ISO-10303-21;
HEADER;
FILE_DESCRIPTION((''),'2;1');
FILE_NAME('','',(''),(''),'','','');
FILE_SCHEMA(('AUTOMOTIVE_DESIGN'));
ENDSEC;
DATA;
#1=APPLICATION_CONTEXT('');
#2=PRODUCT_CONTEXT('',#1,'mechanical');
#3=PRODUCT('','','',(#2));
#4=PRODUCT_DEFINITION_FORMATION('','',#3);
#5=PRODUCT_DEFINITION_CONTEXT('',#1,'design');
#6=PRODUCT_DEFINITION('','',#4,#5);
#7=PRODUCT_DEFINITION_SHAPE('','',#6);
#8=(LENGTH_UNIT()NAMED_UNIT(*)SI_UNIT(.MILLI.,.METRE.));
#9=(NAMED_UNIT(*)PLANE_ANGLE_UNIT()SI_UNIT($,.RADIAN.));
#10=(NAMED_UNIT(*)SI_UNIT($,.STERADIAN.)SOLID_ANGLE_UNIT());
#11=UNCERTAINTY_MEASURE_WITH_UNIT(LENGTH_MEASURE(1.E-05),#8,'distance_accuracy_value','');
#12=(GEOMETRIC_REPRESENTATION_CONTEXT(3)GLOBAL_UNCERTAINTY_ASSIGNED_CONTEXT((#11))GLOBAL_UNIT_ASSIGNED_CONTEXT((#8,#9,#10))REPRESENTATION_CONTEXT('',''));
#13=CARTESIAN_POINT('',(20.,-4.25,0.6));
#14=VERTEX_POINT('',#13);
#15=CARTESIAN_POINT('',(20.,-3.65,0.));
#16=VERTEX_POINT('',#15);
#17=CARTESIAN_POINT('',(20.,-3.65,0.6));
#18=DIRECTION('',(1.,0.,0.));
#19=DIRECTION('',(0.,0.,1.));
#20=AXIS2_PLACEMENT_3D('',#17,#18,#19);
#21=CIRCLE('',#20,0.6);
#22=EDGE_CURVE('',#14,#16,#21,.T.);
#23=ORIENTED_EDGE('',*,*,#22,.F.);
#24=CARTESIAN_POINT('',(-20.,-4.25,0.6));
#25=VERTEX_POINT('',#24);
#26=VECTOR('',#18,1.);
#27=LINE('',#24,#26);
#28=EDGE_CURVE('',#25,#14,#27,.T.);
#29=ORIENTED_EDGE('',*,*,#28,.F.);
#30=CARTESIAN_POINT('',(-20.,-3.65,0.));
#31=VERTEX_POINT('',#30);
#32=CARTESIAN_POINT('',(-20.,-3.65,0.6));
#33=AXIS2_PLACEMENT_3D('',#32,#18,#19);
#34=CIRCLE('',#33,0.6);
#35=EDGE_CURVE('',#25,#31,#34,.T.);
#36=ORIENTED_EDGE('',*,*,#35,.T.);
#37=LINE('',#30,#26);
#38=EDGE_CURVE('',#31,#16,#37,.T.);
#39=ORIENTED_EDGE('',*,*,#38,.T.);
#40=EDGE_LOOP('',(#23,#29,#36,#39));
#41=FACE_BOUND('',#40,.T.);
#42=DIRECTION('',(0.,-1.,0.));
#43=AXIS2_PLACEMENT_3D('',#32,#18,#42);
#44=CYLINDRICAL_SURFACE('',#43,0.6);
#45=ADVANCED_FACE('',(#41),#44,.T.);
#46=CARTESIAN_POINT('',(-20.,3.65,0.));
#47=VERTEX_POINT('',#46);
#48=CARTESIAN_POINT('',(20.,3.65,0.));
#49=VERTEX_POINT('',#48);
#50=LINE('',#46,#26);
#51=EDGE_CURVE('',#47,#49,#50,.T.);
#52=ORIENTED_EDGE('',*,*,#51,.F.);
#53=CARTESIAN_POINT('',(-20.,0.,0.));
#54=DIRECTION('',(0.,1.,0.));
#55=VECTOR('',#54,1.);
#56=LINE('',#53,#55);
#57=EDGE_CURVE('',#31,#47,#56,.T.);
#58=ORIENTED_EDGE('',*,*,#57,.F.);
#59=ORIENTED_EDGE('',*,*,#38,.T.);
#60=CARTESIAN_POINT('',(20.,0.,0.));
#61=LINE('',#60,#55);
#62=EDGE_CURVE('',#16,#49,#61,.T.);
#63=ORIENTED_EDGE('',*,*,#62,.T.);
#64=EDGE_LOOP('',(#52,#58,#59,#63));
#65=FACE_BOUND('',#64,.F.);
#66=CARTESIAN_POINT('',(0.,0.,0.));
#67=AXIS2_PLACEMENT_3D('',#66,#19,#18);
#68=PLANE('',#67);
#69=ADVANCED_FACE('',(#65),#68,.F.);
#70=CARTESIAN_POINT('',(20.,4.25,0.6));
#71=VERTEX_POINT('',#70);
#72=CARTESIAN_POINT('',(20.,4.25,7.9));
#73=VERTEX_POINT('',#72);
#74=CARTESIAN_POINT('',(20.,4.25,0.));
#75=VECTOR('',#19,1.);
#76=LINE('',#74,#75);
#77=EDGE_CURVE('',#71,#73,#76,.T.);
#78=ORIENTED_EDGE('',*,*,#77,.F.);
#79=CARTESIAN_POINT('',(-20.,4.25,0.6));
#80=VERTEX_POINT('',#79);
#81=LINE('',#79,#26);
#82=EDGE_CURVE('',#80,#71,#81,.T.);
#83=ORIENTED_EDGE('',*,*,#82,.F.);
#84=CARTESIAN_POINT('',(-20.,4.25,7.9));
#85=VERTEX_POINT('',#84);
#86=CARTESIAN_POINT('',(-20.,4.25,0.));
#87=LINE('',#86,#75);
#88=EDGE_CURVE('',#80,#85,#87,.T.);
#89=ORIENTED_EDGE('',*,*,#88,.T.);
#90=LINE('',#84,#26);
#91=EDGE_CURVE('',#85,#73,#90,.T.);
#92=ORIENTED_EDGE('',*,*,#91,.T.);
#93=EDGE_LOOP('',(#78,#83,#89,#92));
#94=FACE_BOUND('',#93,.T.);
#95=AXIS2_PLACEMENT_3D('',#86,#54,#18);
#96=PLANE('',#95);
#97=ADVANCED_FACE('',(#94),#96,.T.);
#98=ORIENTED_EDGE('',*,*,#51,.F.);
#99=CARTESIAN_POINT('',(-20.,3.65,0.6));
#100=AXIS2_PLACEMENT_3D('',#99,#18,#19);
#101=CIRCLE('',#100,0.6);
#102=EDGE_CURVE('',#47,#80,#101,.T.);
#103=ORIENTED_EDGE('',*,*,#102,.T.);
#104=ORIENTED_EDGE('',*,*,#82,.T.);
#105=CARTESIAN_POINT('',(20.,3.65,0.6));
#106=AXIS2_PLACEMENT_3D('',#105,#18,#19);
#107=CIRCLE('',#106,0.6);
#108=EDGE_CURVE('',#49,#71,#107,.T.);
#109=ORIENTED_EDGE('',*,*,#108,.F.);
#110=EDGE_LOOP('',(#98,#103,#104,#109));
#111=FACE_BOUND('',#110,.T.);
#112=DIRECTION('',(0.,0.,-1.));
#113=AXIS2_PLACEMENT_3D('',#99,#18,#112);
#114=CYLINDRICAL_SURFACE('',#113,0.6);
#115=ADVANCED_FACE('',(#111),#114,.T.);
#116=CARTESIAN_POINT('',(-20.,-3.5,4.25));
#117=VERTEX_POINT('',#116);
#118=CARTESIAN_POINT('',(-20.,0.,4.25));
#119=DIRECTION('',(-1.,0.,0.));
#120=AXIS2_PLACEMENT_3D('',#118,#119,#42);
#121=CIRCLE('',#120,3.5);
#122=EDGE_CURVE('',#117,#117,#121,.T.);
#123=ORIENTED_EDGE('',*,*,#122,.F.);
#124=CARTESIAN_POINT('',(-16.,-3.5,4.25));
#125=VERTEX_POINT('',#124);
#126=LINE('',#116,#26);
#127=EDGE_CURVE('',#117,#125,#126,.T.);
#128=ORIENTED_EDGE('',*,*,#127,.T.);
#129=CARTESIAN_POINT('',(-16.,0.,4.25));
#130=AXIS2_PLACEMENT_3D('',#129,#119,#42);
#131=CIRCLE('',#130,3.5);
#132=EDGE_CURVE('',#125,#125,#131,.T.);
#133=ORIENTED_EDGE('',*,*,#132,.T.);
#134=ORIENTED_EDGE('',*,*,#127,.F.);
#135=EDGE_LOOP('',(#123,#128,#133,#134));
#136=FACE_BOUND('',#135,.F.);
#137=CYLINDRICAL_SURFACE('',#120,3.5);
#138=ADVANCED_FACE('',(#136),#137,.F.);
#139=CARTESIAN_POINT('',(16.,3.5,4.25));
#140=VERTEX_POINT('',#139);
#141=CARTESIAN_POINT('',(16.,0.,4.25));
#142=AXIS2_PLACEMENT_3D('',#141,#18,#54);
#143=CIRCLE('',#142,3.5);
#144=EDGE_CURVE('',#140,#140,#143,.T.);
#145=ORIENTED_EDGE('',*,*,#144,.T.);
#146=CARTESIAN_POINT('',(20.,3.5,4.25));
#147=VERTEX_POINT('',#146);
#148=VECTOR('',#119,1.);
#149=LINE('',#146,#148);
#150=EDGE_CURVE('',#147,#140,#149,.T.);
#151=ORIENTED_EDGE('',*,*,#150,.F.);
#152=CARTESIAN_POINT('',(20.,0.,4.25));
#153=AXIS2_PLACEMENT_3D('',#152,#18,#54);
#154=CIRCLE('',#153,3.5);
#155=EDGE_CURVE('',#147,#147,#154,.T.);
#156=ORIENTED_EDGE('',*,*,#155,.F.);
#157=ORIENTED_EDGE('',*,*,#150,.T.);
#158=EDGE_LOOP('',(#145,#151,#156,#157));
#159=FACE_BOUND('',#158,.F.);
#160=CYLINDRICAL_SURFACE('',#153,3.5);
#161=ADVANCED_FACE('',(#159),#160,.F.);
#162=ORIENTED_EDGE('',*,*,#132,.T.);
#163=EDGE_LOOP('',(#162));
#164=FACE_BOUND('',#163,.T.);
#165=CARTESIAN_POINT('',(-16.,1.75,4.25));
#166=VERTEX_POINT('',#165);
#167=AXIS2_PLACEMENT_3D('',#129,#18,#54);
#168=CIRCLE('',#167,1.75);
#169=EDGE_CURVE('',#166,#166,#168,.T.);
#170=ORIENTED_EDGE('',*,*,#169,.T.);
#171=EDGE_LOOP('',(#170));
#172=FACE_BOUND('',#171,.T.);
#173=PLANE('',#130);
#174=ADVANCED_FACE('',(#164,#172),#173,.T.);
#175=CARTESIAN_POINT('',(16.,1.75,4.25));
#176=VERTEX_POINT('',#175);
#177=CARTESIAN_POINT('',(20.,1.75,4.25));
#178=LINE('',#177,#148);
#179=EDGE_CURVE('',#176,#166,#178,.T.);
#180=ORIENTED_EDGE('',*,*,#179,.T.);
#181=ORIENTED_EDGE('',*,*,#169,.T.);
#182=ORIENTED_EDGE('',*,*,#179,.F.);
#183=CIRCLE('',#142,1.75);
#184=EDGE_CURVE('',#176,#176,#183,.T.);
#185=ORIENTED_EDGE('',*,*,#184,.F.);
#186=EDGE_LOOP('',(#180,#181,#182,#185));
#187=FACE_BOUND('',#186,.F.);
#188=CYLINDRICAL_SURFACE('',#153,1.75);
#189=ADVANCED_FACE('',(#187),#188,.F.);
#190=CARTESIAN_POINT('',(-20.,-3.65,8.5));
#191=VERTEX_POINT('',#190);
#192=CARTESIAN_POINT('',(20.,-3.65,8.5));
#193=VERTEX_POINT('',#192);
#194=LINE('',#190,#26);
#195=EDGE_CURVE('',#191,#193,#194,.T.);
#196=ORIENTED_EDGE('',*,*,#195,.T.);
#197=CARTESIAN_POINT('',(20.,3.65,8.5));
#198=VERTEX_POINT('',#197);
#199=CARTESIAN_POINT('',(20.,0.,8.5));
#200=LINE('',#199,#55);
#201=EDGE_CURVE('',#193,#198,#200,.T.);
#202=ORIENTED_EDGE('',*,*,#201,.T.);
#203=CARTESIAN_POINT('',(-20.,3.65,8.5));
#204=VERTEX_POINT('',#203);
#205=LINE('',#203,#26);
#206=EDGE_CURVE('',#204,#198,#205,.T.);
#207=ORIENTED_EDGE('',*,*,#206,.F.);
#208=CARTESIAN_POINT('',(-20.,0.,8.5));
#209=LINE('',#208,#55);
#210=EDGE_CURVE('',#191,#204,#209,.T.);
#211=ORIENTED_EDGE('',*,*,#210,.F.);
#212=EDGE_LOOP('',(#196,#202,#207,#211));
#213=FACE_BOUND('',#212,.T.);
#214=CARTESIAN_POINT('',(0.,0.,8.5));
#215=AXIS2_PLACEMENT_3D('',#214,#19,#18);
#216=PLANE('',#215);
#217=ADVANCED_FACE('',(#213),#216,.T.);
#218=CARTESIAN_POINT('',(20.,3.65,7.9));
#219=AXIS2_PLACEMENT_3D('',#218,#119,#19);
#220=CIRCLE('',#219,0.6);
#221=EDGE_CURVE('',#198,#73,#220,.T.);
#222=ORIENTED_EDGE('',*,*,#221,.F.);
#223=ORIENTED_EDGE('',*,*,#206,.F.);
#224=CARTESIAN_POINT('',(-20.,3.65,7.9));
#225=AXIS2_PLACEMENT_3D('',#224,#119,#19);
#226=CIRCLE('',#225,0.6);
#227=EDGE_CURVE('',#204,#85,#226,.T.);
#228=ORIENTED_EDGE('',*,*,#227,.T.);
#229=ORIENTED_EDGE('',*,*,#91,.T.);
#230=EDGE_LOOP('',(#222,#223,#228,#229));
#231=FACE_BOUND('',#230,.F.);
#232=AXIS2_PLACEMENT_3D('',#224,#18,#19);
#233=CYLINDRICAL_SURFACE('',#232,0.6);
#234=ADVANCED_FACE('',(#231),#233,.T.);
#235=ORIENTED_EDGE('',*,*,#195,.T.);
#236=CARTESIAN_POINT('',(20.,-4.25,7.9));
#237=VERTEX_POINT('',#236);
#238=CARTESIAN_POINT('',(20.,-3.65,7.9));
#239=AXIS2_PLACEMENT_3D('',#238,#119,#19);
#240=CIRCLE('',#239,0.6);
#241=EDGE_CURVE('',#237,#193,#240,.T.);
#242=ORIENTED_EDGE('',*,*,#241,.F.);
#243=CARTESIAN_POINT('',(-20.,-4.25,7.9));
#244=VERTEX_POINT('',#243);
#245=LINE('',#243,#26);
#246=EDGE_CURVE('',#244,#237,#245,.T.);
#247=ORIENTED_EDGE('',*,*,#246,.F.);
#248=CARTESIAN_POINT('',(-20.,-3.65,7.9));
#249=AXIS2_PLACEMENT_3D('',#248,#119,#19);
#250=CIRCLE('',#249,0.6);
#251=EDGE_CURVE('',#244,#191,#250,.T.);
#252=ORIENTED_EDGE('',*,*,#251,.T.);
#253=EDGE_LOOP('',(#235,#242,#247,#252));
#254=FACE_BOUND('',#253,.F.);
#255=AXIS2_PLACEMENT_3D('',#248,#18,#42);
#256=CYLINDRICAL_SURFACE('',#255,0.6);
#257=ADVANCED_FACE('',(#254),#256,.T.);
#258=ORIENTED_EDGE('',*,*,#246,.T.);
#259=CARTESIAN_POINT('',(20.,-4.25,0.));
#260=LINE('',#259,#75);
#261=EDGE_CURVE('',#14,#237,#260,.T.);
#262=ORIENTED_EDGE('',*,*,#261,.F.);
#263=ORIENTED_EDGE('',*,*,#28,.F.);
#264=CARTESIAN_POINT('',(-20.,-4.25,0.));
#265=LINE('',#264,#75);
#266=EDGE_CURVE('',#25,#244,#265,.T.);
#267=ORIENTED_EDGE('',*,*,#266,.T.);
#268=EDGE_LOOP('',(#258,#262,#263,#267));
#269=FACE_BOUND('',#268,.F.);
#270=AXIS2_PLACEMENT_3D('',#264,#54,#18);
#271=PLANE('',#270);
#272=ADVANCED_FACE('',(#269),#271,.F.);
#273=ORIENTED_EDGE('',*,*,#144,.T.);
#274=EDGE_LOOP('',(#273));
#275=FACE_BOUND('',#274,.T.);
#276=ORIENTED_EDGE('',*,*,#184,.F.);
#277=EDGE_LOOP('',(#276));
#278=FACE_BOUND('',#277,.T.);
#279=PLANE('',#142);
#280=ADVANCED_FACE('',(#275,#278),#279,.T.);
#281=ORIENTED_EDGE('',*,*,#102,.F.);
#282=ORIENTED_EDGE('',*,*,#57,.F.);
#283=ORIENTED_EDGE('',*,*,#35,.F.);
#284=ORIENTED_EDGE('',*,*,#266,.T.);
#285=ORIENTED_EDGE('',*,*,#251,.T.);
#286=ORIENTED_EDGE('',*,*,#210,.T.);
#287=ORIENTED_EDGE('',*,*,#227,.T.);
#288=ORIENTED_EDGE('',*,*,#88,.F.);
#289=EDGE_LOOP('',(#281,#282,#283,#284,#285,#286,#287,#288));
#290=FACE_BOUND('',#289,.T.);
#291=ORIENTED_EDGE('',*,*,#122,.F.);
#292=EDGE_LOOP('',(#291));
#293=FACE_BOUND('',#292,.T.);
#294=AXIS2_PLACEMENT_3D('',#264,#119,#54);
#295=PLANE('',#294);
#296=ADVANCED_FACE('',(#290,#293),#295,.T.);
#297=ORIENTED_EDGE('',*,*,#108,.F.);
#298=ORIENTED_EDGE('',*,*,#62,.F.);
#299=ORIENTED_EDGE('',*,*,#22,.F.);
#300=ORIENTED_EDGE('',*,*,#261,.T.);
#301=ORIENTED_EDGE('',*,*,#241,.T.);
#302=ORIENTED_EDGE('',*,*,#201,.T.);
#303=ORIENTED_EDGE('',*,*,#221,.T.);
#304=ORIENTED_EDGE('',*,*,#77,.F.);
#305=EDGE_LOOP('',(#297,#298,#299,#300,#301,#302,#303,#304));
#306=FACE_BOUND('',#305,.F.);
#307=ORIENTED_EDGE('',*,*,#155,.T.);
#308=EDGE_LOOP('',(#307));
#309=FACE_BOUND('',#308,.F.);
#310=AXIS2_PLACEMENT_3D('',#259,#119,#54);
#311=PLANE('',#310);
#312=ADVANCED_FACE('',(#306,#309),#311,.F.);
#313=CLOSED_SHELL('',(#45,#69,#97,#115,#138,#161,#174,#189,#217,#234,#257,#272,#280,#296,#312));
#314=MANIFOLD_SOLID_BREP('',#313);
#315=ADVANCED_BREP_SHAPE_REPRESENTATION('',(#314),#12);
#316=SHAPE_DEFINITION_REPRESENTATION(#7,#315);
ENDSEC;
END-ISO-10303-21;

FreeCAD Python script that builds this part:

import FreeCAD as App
import Part
import Sketcher
from FreeCAD import Vector
Q = App.Units.Quantity


def edges_at(feature, points):
    """Names of the edges that pass closest to the given points."""
    edges = feature.Shape.Edges
    near = lambda p: min(range(len(edges)), key=lambda i: edges[i].distToShape(Part.Vertex(*p))[0])
    return sorted({f"Edge{near(p) + 1}" for p in points})

doc = App.newDocument("Part")
body = doc.addObject("PartDesign::Body", "Body")

# Sketch on XY plane
sketch1 = doc.addObject("Sketcher::SketchObject", "Sketch")
body.addObject(sketch1)
sketch1.AttachmentSupport = (doc.XY_Plane, [""])
sketch1.MapMode = "FlatFace"
sketch1.addGeometry([
    Part.LineSegment(Vector(-20, 4, 0), Vector(-20, -4, 0)),
    Part.LineSegment(Vector(-20, -4, 0), Vector(20, -4, 0)),
    Part.LineSegment(Vector(20, -4, 0), Vector(20, 4, 0)),
    Part.LineSegment(Vector(20, 4, 0), Vector(-20, 4, 0)),
], False)
sketch1.addConstraint([
    Sketcher.Constraint("Coincident", 0, 2, 1, 1),
    Sketcher.Constraint("Coincident", 1, 2, 2, 1),
    Sketcher.Constraint("Coincident", 2, 2, 3, 1),
    Sketcher.Constraint("Coincident", 3, 2, 0, 1),
    Sketcher.Constraint("Vertical", 0),
    Sketcher.Constraint("Horizontal", 1),
    Sketcher.Constraint("Vertical", 2),
    Sketcher.Constraint("Horizontal", 3),
    Sketcher.Constraint("Symmetric", 0, 2, 2, 2, -1, 1),
    Sketcher.Constraint("DistanceX", 1, 1, 1, 2, Q("40 mm")),
    Sketcher.Constraint("DistanceY", 0, 2, 0, 1, Q("8.5 mm")),
])
pad1 = doc.addObject("PartDesign::Pad", "Pad")
body.addObject(pad1)
pad1.Profile = sketch1
pad1.Length = 8.5

# Sketch on YZ plane
sketch2 = doc.addObject("Sketcher::SketchObject", "Sketch001")
body.addObject(sketch2)
sketch2.AttachmentSupport = (doc.YZ_Plane, [""])
sketch2.MapMode = "FlatFace"
sketch2.AttachmentOffset = App.Placement(Vector(0, 0, 20), App.Rotation())
sketch2.addGeometry(Part.Circle(Vector(0, 4.2, 0), Vector(0, 0, 1), 1.8), False)
sketch2.addConstraint([
    Sketcher.Constraint("PointOnObject", 0, 3, -2),
    Sketcher.Constraint("Diameter", 0, Q("3.5 mm")),
    Sketcher.Constraint("DistanceY", -1, 1, 0, 3, Q("4.25 mm")),
])
pocket1 = doc.addObject("PartDesign::Pocket", "Pocket")
body.addObject(pocket1)
pocket1.Profile = sketch2
pocket1.Length = 40

# Sketch on YZ plane
sketch3 = doc.addObject("Sketcher::SketchObject", "Sketch002")
body.addObject(sketch3)
sketch3.AttachmentSupport = (doc.YZ_Plane, [""])
sketch3.MapMode = "FlatFace"
sketch3.AttachmentOffset = App.Placement(Vector(0, 0, 20), App.Rotation())
sketch3.addGeometry([
    Part.Circle(Vector(0, 4.2, 0), Vector(0, 0, 1), 3.5),
    Part.Circle(Vector(0, 4.2, 0), Vector(0, 0, 1), 1.8),
], False)
sketch3.addConstraint([
    Sketcher.Constraint("Coincident", 1, 3, 0, 3),
    Sketcher.Constraint("PointOnObject", 0, 3, -2),
    Sketcher.Constraint("Diameter", 0, Q("7 mm")),
    Sketcher.Constraint("Diameter", 1, Q("3.5 mm")),
    Sketcher.Constraint("DistanceY", -1, 1, 0, 3, Q("4.25 mm")),
])
pocket2 = doc.addObject("PartDesign::Pocket", "Pocket001")
body.addObject(pocket2)
pocket2.Profile = sketch3
pocket2.Length = 4

# Sketch on YZ plane
sketch4 = doc.addObject("Sketcher::SketchObject", "Sketch003")
body.addObject(sketch4)
sketch4.AttachmentSupport = (doc.YZ_Plane, [""])
sketch4.MapMode = "FlatFace"
sketch4.AttachmentOffset = App.Placement(Vector(0, 0, -20), App.Rotation())
sketch4.addGeometry(Part.Circle(Vector(0, 4.2, 0), Vector(0, 0, 1), 3.5), False)
sketch4.addConstraint([
    Sketcher.Constraint("PointOnObject", 0, 3, -2),
    Sketcher.Constraint("Diameter", 0, Q("7 mm")),
    Sketcher.Constraint("DistanceY", -1, 1, 0, 3, Q("4.25 mm")),
])
pocket3 = doc.addObject("PartDesign::Pocket", "Pocket002")
body.addObject(pocket3)
pocket3.Profile = sketch4
pocket3.Length = 4
pocket3.Reversed = True
doc.recompute()

fillet = doc.addObject("PartDesign::Fillet", "Fillet")
body.addObject(fillet)
fillet.Base = (pocket3, edges_at(pocket3, [
    (0, 4.25, 8.5),
    (0, 4.25, 0),
    (0, -4.25, 8.5),
    (0, -4.25, 0),
]))
fillet.Radius = 0.6

doc.recompute()
